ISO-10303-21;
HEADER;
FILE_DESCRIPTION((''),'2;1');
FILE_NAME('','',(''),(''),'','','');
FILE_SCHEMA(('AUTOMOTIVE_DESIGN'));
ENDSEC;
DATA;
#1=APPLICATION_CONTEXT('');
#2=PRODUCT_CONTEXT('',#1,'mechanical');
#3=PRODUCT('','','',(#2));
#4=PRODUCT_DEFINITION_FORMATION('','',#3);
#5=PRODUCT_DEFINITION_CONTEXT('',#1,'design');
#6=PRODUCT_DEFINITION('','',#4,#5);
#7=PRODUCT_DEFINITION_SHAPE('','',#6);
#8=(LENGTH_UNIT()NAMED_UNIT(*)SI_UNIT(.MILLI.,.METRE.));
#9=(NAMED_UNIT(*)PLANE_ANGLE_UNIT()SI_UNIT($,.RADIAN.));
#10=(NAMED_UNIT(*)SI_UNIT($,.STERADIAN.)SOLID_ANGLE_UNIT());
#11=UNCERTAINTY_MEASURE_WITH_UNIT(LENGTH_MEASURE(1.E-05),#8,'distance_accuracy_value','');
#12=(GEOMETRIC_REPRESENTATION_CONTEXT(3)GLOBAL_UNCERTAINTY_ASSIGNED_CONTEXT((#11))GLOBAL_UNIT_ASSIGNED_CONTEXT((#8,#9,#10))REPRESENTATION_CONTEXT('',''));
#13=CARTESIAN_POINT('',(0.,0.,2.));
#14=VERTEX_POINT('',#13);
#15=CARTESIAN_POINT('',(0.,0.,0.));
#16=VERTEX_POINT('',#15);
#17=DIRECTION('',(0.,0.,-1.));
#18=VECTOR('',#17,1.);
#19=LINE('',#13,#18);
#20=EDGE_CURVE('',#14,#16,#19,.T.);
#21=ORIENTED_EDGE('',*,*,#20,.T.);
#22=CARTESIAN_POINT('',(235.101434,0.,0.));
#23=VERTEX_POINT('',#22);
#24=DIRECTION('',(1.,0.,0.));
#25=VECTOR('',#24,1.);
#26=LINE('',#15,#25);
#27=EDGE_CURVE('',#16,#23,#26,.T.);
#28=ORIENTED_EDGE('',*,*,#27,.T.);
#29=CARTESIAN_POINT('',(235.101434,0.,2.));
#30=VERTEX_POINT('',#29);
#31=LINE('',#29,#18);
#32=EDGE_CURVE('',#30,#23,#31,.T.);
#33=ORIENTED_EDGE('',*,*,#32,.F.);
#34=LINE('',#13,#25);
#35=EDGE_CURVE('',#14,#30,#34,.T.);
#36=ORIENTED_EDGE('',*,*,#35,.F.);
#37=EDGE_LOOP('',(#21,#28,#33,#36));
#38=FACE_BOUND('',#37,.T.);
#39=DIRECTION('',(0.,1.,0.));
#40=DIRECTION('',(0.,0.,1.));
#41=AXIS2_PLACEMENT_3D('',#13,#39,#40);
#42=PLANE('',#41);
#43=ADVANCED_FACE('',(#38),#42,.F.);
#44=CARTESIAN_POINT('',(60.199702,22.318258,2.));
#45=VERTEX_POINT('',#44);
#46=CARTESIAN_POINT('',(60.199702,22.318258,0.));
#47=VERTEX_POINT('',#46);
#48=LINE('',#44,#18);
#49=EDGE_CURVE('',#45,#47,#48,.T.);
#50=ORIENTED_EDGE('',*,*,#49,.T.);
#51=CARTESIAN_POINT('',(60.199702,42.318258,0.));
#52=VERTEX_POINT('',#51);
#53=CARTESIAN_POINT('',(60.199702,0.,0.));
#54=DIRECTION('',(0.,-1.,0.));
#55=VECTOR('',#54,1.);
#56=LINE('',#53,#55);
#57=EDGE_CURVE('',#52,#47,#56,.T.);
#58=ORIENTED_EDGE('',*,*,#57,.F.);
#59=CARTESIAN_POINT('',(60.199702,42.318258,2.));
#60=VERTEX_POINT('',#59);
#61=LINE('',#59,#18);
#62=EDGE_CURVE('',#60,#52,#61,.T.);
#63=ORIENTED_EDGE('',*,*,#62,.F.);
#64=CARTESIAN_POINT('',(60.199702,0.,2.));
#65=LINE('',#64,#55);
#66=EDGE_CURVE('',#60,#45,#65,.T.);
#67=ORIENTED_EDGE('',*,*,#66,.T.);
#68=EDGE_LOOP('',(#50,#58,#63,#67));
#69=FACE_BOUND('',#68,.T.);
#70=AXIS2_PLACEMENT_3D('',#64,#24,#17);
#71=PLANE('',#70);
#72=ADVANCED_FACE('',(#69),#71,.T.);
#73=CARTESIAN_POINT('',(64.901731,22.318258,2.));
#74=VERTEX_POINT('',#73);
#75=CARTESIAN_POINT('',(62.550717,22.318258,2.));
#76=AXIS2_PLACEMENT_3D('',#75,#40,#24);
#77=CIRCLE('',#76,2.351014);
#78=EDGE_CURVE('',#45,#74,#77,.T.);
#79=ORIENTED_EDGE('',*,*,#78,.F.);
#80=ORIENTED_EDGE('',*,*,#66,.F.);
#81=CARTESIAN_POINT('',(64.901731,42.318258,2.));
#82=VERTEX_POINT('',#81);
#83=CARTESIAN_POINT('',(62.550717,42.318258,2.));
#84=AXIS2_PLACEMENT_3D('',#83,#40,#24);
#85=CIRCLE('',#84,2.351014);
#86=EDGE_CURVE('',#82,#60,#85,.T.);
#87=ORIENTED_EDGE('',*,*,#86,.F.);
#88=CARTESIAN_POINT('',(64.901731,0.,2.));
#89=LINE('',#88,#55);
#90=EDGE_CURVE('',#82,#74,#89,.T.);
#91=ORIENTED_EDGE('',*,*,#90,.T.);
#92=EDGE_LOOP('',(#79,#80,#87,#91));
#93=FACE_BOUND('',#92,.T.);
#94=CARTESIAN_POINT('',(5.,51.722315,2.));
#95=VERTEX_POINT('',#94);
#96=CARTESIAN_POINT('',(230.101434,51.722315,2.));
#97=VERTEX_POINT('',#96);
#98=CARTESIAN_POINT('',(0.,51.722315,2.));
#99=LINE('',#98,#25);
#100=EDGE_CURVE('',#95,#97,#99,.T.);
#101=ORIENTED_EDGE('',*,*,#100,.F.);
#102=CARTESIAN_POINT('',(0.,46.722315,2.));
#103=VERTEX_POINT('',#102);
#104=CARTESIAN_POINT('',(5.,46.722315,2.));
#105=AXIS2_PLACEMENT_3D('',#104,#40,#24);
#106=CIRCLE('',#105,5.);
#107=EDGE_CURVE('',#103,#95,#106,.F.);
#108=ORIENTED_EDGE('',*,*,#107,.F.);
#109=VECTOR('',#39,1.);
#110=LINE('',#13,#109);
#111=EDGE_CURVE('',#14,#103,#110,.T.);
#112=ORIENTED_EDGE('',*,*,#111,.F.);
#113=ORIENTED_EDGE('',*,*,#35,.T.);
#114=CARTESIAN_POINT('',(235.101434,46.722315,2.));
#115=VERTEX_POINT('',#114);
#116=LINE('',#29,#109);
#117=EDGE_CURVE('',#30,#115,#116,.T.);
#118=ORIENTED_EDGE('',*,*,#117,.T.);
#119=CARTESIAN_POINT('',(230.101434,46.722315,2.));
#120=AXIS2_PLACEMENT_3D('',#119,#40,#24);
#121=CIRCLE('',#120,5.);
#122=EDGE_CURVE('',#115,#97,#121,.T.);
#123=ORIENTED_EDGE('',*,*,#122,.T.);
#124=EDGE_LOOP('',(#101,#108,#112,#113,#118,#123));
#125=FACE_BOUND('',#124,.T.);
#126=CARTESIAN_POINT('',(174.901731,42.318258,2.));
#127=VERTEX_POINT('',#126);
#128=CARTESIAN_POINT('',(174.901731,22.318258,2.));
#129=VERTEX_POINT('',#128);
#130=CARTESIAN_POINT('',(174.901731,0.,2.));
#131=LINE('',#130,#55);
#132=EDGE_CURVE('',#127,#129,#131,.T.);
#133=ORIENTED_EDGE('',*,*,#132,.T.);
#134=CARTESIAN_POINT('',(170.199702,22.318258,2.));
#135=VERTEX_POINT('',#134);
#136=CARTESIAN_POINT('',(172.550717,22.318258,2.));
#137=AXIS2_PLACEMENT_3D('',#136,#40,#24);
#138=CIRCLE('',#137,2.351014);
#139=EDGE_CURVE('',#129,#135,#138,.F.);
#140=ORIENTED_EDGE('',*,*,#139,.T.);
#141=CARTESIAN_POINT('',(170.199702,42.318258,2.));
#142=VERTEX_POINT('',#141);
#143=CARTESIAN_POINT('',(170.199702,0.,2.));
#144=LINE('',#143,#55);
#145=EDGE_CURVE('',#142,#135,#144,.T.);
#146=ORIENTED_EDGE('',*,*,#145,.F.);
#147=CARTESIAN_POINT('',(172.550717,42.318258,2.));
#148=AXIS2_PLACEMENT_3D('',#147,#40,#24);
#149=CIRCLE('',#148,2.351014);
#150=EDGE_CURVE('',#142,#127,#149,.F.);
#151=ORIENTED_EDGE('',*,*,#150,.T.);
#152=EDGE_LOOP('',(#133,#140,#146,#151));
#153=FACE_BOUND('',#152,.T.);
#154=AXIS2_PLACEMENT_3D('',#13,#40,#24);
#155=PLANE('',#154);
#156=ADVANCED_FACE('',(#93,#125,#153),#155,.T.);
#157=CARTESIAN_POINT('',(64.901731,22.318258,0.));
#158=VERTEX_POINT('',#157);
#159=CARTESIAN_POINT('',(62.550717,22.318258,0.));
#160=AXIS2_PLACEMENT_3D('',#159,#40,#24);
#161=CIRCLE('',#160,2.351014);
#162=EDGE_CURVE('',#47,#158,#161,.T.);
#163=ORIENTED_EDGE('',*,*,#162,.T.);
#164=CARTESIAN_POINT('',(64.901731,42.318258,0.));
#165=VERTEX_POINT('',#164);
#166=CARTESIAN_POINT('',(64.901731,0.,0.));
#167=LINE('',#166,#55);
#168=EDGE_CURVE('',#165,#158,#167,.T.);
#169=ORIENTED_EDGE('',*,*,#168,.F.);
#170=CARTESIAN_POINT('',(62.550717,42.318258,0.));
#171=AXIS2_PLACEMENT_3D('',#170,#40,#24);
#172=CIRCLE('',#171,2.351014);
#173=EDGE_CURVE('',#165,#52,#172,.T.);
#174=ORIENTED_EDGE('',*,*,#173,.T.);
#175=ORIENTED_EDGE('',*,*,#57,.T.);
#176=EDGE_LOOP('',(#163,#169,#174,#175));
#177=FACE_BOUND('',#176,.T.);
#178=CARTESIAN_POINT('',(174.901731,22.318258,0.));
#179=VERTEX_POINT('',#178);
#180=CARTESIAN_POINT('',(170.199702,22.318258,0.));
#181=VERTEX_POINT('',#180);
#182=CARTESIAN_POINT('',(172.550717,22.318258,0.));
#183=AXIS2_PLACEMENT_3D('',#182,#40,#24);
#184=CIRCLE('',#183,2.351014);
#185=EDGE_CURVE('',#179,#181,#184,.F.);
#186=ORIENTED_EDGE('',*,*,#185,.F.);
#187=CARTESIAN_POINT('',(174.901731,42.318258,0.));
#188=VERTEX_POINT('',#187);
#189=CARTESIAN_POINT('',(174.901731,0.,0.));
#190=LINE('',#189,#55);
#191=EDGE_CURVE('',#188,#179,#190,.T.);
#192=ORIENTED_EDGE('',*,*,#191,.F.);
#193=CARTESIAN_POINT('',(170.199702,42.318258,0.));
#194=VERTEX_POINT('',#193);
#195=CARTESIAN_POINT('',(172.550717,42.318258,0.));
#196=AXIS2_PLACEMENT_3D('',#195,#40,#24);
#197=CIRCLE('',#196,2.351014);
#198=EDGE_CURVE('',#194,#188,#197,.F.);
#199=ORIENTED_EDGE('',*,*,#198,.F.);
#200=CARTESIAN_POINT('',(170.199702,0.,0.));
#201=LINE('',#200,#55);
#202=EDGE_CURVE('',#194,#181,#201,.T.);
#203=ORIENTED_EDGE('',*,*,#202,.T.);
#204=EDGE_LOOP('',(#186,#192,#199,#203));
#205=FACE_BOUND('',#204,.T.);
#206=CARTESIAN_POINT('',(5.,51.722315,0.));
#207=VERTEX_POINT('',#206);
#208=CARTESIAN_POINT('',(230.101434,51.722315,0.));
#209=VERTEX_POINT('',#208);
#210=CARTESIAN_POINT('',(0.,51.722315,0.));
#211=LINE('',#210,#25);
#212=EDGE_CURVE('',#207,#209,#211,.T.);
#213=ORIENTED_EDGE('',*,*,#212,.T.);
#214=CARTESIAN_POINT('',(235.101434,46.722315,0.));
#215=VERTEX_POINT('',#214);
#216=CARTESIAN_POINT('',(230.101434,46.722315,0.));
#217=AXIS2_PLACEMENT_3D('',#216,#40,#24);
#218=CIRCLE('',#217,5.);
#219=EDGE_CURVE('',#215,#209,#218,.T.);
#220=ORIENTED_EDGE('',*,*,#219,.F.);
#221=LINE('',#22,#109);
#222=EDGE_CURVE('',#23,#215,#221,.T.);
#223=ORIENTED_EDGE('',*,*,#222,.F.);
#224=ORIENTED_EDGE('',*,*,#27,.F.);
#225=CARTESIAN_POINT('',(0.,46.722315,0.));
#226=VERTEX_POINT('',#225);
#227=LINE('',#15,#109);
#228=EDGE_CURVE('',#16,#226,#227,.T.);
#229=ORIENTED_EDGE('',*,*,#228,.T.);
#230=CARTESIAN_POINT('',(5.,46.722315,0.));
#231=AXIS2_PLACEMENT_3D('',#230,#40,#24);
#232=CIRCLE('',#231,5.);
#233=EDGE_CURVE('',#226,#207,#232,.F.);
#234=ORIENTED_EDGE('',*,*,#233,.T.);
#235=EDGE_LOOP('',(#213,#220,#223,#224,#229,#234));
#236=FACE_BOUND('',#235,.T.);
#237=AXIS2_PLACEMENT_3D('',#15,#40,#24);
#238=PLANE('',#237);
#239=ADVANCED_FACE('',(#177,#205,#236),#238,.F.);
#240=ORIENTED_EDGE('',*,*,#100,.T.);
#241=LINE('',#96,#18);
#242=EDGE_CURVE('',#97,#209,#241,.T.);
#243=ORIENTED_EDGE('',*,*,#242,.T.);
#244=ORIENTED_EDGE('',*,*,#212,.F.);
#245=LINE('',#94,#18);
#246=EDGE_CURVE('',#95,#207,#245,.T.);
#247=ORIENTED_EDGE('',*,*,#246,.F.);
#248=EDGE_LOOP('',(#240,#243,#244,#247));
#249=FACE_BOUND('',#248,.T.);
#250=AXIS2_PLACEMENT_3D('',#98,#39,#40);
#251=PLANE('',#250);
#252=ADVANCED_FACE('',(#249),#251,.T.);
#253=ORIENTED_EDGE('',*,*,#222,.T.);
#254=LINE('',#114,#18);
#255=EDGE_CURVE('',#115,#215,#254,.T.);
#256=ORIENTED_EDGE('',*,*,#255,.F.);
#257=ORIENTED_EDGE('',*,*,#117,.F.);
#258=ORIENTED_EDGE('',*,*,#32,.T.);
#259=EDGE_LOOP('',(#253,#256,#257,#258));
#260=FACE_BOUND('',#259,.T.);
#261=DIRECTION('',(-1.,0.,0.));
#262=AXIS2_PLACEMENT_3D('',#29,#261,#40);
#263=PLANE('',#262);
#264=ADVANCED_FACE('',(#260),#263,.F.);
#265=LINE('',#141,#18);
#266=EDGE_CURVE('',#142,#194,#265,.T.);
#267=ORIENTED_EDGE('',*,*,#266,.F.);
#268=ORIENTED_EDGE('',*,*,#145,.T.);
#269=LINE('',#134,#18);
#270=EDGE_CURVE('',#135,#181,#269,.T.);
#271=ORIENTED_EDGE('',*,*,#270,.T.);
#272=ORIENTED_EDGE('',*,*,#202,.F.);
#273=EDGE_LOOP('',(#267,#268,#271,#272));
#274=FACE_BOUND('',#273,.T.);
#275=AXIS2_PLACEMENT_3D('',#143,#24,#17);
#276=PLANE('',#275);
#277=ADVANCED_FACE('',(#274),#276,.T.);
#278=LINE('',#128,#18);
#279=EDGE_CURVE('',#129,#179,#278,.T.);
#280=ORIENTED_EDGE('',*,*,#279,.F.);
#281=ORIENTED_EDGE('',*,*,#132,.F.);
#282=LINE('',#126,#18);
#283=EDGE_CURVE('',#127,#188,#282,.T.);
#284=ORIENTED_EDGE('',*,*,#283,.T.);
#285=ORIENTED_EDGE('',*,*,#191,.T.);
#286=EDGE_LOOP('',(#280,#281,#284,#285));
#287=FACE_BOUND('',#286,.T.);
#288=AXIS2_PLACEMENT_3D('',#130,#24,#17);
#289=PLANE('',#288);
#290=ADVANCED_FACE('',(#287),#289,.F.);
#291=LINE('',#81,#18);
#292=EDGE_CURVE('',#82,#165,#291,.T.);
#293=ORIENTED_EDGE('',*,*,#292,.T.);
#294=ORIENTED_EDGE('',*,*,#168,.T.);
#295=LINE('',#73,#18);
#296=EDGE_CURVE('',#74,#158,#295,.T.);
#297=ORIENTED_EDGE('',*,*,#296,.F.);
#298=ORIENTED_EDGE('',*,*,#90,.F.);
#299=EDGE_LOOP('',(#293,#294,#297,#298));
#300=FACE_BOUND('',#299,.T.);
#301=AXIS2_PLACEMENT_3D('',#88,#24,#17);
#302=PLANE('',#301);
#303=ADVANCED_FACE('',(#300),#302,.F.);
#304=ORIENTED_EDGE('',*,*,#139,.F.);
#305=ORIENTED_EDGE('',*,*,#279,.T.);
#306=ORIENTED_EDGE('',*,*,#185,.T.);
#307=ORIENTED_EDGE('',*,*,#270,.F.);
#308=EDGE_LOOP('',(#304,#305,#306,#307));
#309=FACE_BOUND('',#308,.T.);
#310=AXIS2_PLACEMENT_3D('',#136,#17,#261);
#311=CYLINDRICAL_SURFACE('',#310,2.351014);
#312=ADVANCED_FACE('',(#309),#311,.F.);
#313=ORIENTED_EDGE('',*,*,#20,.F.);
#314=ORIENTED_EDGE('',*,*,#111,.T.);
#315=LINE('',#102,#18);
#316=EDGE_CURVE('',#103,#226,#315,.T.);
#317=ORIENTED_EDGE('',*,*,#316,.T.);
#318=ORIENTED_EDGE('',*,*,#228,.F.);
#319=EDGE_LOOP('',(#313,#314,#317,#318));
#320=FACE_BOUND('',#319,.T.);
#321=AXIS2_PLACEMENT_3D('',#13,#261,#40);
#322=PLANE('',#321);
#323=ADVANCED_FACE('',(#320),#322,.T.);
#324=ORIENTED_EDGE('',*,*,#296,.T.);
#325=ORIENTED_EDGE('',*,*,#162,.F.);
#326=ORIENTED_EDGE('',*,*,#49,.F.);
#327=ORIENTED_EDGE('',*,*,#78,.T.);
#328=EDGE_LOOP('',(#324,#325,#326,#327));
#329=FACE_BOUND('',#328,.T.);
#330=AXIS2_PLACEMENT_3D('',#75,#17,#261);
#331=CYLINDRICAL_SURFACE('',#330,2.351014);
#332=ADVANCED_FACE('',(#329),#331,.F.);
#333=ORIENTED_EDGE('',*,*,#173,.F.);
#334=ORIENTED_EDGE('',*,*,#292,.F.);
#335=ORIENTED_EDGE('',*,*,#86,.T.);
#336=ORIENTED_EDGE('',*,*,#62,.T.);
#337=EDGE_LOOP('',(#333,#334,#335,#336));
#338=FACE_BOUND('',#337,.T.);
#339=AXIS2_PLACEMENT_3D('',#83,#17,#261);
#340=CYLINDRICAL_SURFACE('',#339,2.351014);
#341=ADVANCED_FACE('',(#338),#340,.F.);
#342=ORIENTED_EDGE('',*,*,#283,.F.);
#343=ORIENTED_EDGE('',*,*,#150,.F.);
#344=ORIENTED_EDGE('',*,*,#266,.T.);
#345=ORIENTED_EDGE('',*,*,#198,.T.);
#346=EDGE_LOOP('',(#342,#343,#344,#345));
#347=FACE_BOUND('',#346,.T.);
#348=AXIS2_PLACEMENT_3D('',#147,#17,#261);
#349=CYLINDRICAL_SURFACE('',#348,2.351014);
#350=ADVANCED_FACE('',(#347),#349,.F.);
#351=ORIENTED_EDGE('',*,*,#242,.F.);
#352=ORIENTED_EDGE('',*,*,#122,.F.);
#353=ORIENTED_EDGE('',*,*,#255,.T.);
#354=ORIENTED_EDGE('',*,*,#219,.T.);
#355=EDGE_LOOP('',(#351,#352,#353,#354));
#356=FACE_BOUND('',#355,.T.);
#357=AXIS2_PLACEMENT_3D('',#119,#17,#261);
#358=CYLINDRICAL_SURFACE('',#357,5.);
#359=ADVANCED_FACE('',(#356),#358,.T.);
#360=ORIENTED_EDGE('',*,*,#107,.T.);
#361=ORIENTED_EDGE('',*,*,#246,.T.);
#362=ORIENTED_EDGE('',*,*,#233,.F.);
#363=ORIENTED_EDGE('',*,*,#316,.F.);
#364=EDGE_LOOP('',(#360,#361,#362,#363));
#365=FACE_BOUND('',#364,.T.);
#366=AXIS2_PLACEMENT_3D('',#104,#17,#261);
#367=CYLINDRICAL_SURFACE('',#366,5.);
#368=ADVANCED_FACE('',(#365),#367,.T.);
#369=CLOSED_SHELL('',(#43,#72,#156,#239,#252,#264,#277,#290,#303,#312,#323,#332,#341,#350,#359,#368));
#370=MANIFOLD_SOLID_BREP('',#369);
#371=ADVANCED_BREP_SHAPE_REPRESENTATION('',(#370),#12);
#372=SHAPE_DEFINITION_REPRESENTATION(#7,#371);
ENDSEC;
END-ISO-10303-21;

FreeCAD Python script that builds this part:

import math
import FreeCAD as App
import Part
import Sketcher
from FreeCAD import Vector
Q = App.Units.Quantity

doc = App.newDocument("Part")
body = doc.addObject("PartDesign::Body", "Body")

# Sketch on XY plane
sketch1 = body.newObject("Sketcher::SketchObject", "Sketch")
sketch1.AttachmentSupport = (doc.getObject("XY_Plane"), [""])
sketch1.MapMode = "FlatFace"
sketch1.addGeometry(Part.LineSegment(Vector(0, 0, 0), Vector(235.1, 0, 0)), False)
sketch1.addGeometry(Part.LineSegment(Vector(235.1, 0, 0), Vector(235.1, 46.7, 0)), False)
sketch1.addGeometry(Part.ArcOfCircle(Part.Circle(Vector(230.1, 46.7, 0), Vector(0, 0, 1), 5), math.radians(0), math.radians(90)), False)
sketch1.addGeometry(Part.LineSegment(Vector(230.1, 51.7, 0), Vector(5, 51.7, 0)), False)
sketch1.addGeometry(Part.ArcOfCircle(Part.Circle(Vector(5, 46.7, 0), Vector(0, 0, 1), 5), math.radians(90), math.radians(180)), False)
sketch1.addGeometry(Part.LineSegment(Vector(0, 46.7, 0), Vector(0, 0, 0)), False)
sketch1.addGeometry(Part.LineSegment(Vector(60.2, 22.3, 0), Vector(60.2, 42.3, 0)), False)
sketch1.addGeometry(Part.ArcOfCircle(Part.Circle(Vector(62.6, 42.3, 0), Vector(0, 0, 1), 2.4), math.radians(0), math.radians(180)), False)
sketch1.addGeometry(Part.LineSegment(Vector(64.9, 42.3, 0), Vector(64.9, 22.3, 0)), False)
sketch1.addGeometry(Part.ArcOfCircle(Part.Circle(Vector(62.6, 22.3, 0), Vector(0, 0, 1), 2.4), math.radians(180), math.radians(360)), False)
sketch1.addGeometry(Part.LineSegment(Vector(170.2, 22.3, 0), Vector(170.2, 42.3, 0)), False)
sketch1.addGeometry(Part.ArcOfCircle(Part.Circle(Vector(172.6, 42.3, 0), Vector(0, 0, 1), 2.4), math.radians(0), math.radians(180)), False)
sketch1.addGeometry(Part.LineSegment(Vector(174.9, 42.3, 0), Vector(174.9, 22.3, 0)), False)
sketch1.addGeometry(Part.ArcOfCircle(Part.Circle(Vector(172.6, 22.3, 0), Vector(0, 0, 1), 2.4), math.radians(180), math.radians(360)), False)
sketch1.addConstraint(Sketcher.Constraint("Coincident", 0, 2, 1, 1))
sketch1.addConstraint(Sketcher.Constraint("Tangent", 1, 2, 2, 1))
sketch1.addConstraint(Sketcher.Constraint("Tangent", 2, 2, 3, 1))
sketch1.addConstraint(Sketcher.Constraint("Tangent", 3, 2, 4, 1))
sketch1.addConstraint(Sketcher.Constraint("Tangent", 4, 2, 5, 1))
sketch1.addConstraint(Sketcher.Constraint("Coincident", 5, 2, 0, 1))
sketch1.addConstraint(Sketcher.Constraint("Tangent", 6, 2, 7, 2))
sketch1.addConstraint(Sketcher.Constraint("Tangent", 7, 1, 8, 1))
sketch1.addConstraint(Sketcher.Constraint("Tangent", 8, 2, 9, 2))
sketch1.addConstraint(Sketcher.Constraint("Tangent", 9, 1, 6, 1))
sketch1.addConstraint(Sketcher.Constraint("Tangent", 10, 2, 11, 2))
sketch1.addConstraint(Sketcher.Constraint("Tangent", 11, 1, 12, 1))
sketch1.addConstraint(Sketcher.Constraint("Tangent", 12, 2, 13, 2))
sketch1.addConstraint(Sketcher.Constraint("Tangent", 13, 1, 10, 1))
sketch1.addConstraint(Sketcher.Constraint("Horizontal", 0))
sketch1.addConstraint(Sketcher.Constraint("Vertical", 1))
sketch1.addConstraint(Sketcher.Constraint("Horizontal", 3))
sketch1.addConstraint(Sketcher.Constraint("Vertical", 5))
sketch1.addConstraint(Sketcher.Constraint("Vertical", 6))
sketch1.addConstraint(Sketcher.Constraint("Vertical", 8))
sketch1.addConstraint(Sketcher.Constraint("Vertical", 10))
sketch1.addConstraint(Sketcher.Constraint("Vertical", 12))
sketch1.addConstraint(Sketcher.Constraint("Coincident", 5, 2, -1, 1))
sketch1.addConstraint(Sketcher.Constraint("Equal", 2, 4))
sketch1.addConstraint(Sketcher.Constraint("Equal", 9, 11))
sketch1.addConstraint(Sketcher.Constraint("Horizontal", 7, 3, 11, 3))
sketch1.addConstraint(Sketcher.Constraint("Horizontal", 9, 3, 13, 3))
sketch1.addConstraint(Sketcher.Constraint("Radius", 2, Q("5 mm")))
sketch1.addConstraint(Sketcher.Constraint("DistanceY", 6, 1, 6, 2, Q("20 mm")))
sketch1.addConstraint(Sketcher.Constraint("DistanceX", 7, 3, 11, 3, Q("110 mm")))
sketch1.addConstraint(Sketcher.Constraint("Radius", 7, Q("2.351014 mm")))
sketch1.addConstraint(Sketcher.Constraint("DistanceX", 0, 1, 0, 2, Q("235.101434 mm")))
sketch1.addConstraint(Sketcher.Constraint("DistanceY", 1, 1, 1, 2, Q("46.722315 mm")))
sketch1.addConstraint(Sketcher.Constraint("DistanceY", -1, 1, 7, 3, Q("42.318258 mm")))
sketch1.addConstraint(Sketcher.Constraint("DistanceX", -1, 1, 7, 1, Q("64.901731 mm")))
pad1 = body.newObject("PartDesign::Pad", "Pad")
pad1.Profile = sketch1
pad1.Length = 2

doc.recompute()
